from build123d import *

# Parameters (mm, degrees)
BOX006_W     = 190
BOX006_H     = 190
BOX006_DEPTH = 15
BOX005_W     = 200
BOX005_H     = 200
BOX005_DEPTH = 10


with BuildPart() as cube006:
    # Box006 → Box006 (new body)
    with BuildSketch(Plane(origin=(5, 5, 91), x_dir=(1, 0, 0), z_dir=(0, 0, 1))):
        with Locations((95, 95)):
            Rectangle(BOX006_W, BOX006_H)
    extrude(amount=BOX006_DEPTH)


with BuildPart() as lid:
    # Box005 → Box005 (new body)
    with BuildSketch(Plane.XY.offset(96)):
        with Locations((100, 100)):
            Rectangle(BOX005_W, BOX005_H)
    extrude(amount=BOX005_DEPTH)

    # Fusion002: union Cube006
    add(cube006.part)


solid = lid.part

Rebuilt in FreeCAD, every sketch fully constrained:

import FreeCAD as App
import Part
import Sketcher
Q = App.Units.Quantity

doc = App.newDocument("Part")
body = doc.addObject("PartDesign::Body", "Body")

sketch1 = doc.addObject("Sketcher::SketchObject", "Sketch")
body.addObject(sketch1)
sketch1.AttachmentSupport = (doc.XY_Plane, [""])
sketch1.MapMode = "FlatFace"
sketch1.AttachmentOffset = App.Placement(App.Vector(0, 0, 91), App.Rotation())
sketch1.addGeometry([
    Part.LineSegment(App.Vector(5, 195, 0), App.Vector(5, 5, 0)),
    Part.LineSegment(App.Vector(5, 5, 0), App.Vector(195, 5, 0)),
    Part.LineSegment(App.Vector(195, 5, 0), App.Vector(195, 195, 0)),
    Part.LineSegment(App.Vector(195, 195, 0), App.Vector(5, 195, 0)),
], False)
sketch1.addConstraint([
    Sketcher.Constraint("Coincident", 0, 2, 1, 1),
    Sketcher.Constraint("Coincident", 1, 2, 2, 1),
    Sketcher.Constraint("Coincident", 2, 2, 3, 1),
    Sketcher.Constraint("Coincident", 3, 2, 0, 1),
    Sketcher.Constraint("Vertical", 0),
    Sketcher.Constraint("Horizontal", 1),
    Sketcher.Constraint("Vertical", 2),
    Sketcher.Constraint("Horizontal", 3),
    Sketcher.Constraint("Equal", 3, 0),
    Sketcher.Constraint("DistanceX", 1, 1, 1, 2, Q("190 mm")),
    Sketcher.Constraint("DistanceX", -1, 1, 0, 2, Q("5 mm")),
    Sketcher.Constraint("DistanceY", -1, 1, 0, 2, Q("5 mm")),
])
pad1 = doc.addObject("PartDesign::Pad", "Pad")
body.addObject(pad1)
pad1.Profile = sketch1
pad1.Length = 15
body2 = doc.addObject("PartDesign::Body", "Body001")

sketch2 = doc.addObject("Sketcher::SketchObject", "Sketch001")
body2.addObject(sketch2)
sketch2.AttachmentSupport = (doc.getObject("XY_Plane001"), [""])
sketch2.MapMode = "FlatFace"
sketch2.AttachmentOffset = App.Placement(App.Vector(0, 0, 96), App.Rotation())
sketch2.addGeometry([
    Part.LineSegment(App.Vector(0, 200, 0), App.Vector(0, 0, 0)),
    Part.LineSegment(App.Vector(0, 0, 0), App.Vector(200, 0, 0)),
    Part.LineSegment(App.Vector(200, 0, 0), App.Vector(200, 200, 0)),
    Part.LineSegment(App.Vector(200, 200, 0), App.Vector(0, 200, 0)),
], False)
sketch2.addConstraint([
    Sketcher.Constraint("Coincident", 0, 2, 1, 1),
    Sketcher.Constraint("Coincident", 1, 2, 2, 1),
    Sketcher.Constraint("Coincident", 2, 2, 3, 1),
    Sketcher.Constraint("Coincident", 3, 2, 0, 1),
    Sketcher.Constraint("Vertical", 0),
    Sketcher.Constraint("Horizontal", 1),
    Sketcher.Constraint("Vertical", 2),
    Sketcher.Constraint("Horizontal", 3),
    Sketcher.Constraint("Coincident", 0, 2, -1, 1),
    Sketcher.Constraint("Equal", 3, 0),
    Sketcher.Constraint("DistanceX", 1, 1, 1, 2, Q("200 mm")),
])
pad2 = doc.addObject("PartDesign::Pad", "Pad001")
body2.addObject(pad2)
pad2.Profile = sketch2
pad2.Length = 10
doc.recompute()

boolean = doc.addObject("PartDesign::Boolean", "Boolean")
body2.addObject(boolean)
boolean.Type = "Fuse"
boolean.addObjects([body])

doc.recompute()
